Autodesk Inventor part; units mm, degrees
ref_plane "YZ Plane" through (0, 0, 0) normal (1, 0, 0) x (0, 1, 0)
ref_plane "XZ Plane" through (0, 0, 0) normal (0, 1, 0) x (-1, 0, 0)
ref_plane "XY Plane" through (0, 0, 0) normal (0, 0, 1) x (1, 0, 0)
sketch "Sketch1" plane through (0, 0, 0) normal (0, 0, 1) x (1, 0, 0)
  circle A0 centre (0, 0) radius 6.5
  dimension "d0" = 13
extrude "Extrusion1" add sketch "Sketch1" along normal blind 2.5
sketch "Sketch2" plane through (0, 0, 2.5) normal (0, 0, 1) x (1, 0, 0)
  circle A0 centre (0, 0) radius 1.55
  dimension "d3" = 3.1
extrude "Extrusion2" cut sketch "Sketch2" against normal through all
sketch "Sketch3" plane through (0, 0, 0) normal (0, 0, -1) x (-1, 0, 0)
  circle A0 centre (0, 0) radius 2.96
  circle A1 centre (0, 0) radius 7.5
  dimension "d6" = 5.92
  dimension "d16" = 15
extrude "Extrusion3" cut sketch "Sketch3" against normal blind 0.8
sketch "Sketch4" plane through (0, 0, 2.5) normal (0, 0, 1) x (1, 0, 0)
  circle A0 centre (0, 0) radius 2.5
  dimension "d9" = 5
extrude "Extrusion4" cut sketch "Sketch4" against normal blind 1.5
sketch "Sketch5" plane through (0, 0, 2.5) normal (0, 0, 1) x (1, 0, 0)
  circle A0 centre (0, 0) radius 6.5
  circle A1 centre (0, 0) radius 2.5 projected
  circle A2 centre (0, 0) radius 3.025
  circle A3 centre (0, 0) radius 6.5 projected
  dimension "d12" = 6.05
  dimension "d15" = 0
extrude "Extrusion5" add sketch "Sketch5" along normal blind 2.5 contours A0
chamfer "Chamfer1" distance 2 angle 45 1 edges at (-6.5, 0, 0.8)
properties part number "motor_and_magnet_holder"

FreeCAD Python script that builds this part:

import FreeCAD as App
import Part
import Sketcher
from FreeCAD import Vector
Q = App.Units.Quantity


def edges_at(feature, points):
    """Names of the edges that pass closest to the given points."""
    edges = feature.Shape.Edges
    near = lambda p: min(range(len(edges)), key=lambda i: edges[i].distToShape(Part.Vertex(*p))[0])
    return sorted({f"Edge{near(p) + 1}" for p in points})

doc = App.newDocument("Part")
params = doc.addObject("Spreadsheet::Sheet", "Params")
for row, (alias, value) in enumerate([
    ("sketch1_diameter", "13 mm"),
    ("pad1_length", "2.5 mm"),
    ("sketch2_diameter", "3.1 mm"),
    ("sketch3_diameter", "15 mm"),
    ("sketch3_diameter2", "5.92 mm"),
    ("pocket2_length", "0.8 mm"),
    ("sketch4_diameter", "5 mm"),
    ("pocket3_length", "1.5 mm"),
    ("sketch5_diameter", "6.05 mm"),
    ("sketch5_diameter2", "13 mm"),
    ("pad2_length", "2.5 mm"),
    ("chamfer_size", "2 mm"),
], start=1):
    params.set(f"A{row}", alias)
    params.set(f"B{row}", "=" + value)
    params.setAlias(f"B{row}", alias)

body = doc.addObject("PartDesign::Body", "Body")

# Sketch on XY plane
sketch1 = body.newObject("Sketcher::SketchObject", "Sketch")
sketch1.AttachmentSupport = (doc.getObject("XY_Plane"), [""])
sketch1.MapMode = "FlatFace"
sketch1.addGeometry(Part.Circle(Vector(0, 0, 0), Vector(0, 0, 1), 6), False)
sketch1.addConstraint([
    Sketcher.Constraint("Coincident", 0, 3, -1, 1),
    Sketcher.Constraint("Diameter", 0, Q("13 mm")),
])
sketch1.setExpression("Constraints[1]", "Params.sketch1_diameter")
pad1 = body.newObject("PartDesign::Pad", "Pad")
pad1.Profile = sketch1
pad1.setExpression("Length", "Params.pad1_length")

# Sketch on XY plane
sketch2 = body.newObject("Sketcher::SketchObject", "Sketch001")
sketch2.AttachmentSupport = (doc.getObject("XY_Plane"), [""])
sketch2.MapMode = "FlatFace"
sketch2.AttachmentOffset = App.Placement(Vector(0, 0, 2.5), App.Rotation())
sketch2.addGeometry(Part.Circle(Vector(0, 0, 0), Vector(0, 0, 1), 1.6), False)
sketch2.addConstraint([
    Sketcher.Constraint("Coincident", 0, 3, -1, 1),
    Sketcher.Constraint("Diameter", 0, Q("3.1 mm")),
])
sketch2.setExpression("Constraints[1]", "Params.sketch2_diameter")
pocket1 = body.newObject("PartDesign::Pocket", "Pocket")
pocket1.Profile = sketch2
pocket1.Type = "ThroughAll"

# Sketch on XY plane
sketch3 = body.newObject("Sketcher::SketchObject", "Sketch002")
sketch3.AttachmentSupport = (doc.getObject("XY_Plane"), [""])
sketch3.MapMode = "FlatFace"
sketch3.addGeometry([
    Part.Circle(Vector(0, 0, 0), Vector(0, 0, 1), 7.5),
    Part.Circle(Vector(0, 0, 0), Vector(0, 0, 1), 3),
], False)
sketch3.addConstraint([
    Sketcher.Constraint("Coincident", 0, 3, -1, 1),
    Sketcher.Constraint("Coincident", 1, 3, -1, 1),
    Sketcher.Constraint("Diameter", 0, Q("15 mm")),
    Sketcher.Constraint("Diameter", 1, Q("5.92 mm")),
])
sketch3.setExpression("Constraints[2]", "Params.sketch3_diameter")
sketch3.setExpression("Constraints[3]", "Params.sketch3_diameter2")
pocket2 = body.newObject("PartDesign::Pocket", "Pocket001")
pocket2.Profile = sketch3
pocket2.setExpression("Length", "Params.pocket2_length")
pocket2.Reversed = True

# Sketch on XY plane
sketch4 = body.newObject("Sketcher::SketchObject", "Sketch003")
sketch4.AttachmentSupport = (doc.getObject("XY_Plane"), [""])
sketch4.MapMode = "FlatFace"
sketch4.AttachmentOffset = App.Placement(Vector(0, 0, 2.5), App.Rotation())
sketch4.addGeometry(Part.Circle(Vector(0, 0, 0), Vector(0, 0, 1), 2.5), False)
sketch4.addConstraint([
    Sketcher.Constraint("Coincident", 0, 3, -1, 1),
    Sketcher.Constraint("Diameter", 0, Q("5 mm")),
])
sketch4.setExpression("Constraints[1]", "Params.sketch4_diameter")
pocket3 = body.newObject("PartDesign::Pocket", "Pocket002")
pocket3.Profile = sketch4
pocket3.setExpression("Length", "Params.pocket3_length")

# Sketch on XY plane
sketch5 = body.newObject("Sketcher::SketchObject", "Sketch004")
sketch5.AttachmentSupport = (doc.getObject("XY_Plane"), [""])
sketch5.MapMode = "FlatFace"
sketch5.AttachmentOffset = App.Placement(Vector(0, 0, 2.5), App.Rotation())
sketch5.addGeometry([
    Part.Circle(Vector(0, 0, 0), Vector(0, 0, 1), 6.5),
    Part.Circle(Vector(0, 0, 0), Vector(0, 0, 1), 3),
], False)
sketch5.addConstraint([
    Sketcher.Constraint("Coincident", 0, 3, -1, 1),
    Sketcher.Constraint("Coincident", 1, 3, -1, 1),
    Sketcher.Constraint("Diameter", 1, Q("6.05 mm")),
    Sketcher.Constraint("Diameter", 0, Q("13 mm")),
])
sketch5.setExpression("Constraints[2]", "Params.sketch5_diameter")
sketch5.setExpression("Constraints[3]", "Params.sketch5_diameter2")
pad2 = body.newObject("PartDesign::Pad", "Pad001")
pad2.Profile = sketch5
pad2.setExpression("Length", "Params.pad2_length")
doc.recompute()

chamfer = body.newObject("PartDesign::Chamfer", "Chamfer")
chamfer.Base = (pad2, edges_at(pad2, [(-6.5, 0, 0.8)]))
chamfer.setExpression("Size", "Params.chamfer_size")

doc.recompute()
